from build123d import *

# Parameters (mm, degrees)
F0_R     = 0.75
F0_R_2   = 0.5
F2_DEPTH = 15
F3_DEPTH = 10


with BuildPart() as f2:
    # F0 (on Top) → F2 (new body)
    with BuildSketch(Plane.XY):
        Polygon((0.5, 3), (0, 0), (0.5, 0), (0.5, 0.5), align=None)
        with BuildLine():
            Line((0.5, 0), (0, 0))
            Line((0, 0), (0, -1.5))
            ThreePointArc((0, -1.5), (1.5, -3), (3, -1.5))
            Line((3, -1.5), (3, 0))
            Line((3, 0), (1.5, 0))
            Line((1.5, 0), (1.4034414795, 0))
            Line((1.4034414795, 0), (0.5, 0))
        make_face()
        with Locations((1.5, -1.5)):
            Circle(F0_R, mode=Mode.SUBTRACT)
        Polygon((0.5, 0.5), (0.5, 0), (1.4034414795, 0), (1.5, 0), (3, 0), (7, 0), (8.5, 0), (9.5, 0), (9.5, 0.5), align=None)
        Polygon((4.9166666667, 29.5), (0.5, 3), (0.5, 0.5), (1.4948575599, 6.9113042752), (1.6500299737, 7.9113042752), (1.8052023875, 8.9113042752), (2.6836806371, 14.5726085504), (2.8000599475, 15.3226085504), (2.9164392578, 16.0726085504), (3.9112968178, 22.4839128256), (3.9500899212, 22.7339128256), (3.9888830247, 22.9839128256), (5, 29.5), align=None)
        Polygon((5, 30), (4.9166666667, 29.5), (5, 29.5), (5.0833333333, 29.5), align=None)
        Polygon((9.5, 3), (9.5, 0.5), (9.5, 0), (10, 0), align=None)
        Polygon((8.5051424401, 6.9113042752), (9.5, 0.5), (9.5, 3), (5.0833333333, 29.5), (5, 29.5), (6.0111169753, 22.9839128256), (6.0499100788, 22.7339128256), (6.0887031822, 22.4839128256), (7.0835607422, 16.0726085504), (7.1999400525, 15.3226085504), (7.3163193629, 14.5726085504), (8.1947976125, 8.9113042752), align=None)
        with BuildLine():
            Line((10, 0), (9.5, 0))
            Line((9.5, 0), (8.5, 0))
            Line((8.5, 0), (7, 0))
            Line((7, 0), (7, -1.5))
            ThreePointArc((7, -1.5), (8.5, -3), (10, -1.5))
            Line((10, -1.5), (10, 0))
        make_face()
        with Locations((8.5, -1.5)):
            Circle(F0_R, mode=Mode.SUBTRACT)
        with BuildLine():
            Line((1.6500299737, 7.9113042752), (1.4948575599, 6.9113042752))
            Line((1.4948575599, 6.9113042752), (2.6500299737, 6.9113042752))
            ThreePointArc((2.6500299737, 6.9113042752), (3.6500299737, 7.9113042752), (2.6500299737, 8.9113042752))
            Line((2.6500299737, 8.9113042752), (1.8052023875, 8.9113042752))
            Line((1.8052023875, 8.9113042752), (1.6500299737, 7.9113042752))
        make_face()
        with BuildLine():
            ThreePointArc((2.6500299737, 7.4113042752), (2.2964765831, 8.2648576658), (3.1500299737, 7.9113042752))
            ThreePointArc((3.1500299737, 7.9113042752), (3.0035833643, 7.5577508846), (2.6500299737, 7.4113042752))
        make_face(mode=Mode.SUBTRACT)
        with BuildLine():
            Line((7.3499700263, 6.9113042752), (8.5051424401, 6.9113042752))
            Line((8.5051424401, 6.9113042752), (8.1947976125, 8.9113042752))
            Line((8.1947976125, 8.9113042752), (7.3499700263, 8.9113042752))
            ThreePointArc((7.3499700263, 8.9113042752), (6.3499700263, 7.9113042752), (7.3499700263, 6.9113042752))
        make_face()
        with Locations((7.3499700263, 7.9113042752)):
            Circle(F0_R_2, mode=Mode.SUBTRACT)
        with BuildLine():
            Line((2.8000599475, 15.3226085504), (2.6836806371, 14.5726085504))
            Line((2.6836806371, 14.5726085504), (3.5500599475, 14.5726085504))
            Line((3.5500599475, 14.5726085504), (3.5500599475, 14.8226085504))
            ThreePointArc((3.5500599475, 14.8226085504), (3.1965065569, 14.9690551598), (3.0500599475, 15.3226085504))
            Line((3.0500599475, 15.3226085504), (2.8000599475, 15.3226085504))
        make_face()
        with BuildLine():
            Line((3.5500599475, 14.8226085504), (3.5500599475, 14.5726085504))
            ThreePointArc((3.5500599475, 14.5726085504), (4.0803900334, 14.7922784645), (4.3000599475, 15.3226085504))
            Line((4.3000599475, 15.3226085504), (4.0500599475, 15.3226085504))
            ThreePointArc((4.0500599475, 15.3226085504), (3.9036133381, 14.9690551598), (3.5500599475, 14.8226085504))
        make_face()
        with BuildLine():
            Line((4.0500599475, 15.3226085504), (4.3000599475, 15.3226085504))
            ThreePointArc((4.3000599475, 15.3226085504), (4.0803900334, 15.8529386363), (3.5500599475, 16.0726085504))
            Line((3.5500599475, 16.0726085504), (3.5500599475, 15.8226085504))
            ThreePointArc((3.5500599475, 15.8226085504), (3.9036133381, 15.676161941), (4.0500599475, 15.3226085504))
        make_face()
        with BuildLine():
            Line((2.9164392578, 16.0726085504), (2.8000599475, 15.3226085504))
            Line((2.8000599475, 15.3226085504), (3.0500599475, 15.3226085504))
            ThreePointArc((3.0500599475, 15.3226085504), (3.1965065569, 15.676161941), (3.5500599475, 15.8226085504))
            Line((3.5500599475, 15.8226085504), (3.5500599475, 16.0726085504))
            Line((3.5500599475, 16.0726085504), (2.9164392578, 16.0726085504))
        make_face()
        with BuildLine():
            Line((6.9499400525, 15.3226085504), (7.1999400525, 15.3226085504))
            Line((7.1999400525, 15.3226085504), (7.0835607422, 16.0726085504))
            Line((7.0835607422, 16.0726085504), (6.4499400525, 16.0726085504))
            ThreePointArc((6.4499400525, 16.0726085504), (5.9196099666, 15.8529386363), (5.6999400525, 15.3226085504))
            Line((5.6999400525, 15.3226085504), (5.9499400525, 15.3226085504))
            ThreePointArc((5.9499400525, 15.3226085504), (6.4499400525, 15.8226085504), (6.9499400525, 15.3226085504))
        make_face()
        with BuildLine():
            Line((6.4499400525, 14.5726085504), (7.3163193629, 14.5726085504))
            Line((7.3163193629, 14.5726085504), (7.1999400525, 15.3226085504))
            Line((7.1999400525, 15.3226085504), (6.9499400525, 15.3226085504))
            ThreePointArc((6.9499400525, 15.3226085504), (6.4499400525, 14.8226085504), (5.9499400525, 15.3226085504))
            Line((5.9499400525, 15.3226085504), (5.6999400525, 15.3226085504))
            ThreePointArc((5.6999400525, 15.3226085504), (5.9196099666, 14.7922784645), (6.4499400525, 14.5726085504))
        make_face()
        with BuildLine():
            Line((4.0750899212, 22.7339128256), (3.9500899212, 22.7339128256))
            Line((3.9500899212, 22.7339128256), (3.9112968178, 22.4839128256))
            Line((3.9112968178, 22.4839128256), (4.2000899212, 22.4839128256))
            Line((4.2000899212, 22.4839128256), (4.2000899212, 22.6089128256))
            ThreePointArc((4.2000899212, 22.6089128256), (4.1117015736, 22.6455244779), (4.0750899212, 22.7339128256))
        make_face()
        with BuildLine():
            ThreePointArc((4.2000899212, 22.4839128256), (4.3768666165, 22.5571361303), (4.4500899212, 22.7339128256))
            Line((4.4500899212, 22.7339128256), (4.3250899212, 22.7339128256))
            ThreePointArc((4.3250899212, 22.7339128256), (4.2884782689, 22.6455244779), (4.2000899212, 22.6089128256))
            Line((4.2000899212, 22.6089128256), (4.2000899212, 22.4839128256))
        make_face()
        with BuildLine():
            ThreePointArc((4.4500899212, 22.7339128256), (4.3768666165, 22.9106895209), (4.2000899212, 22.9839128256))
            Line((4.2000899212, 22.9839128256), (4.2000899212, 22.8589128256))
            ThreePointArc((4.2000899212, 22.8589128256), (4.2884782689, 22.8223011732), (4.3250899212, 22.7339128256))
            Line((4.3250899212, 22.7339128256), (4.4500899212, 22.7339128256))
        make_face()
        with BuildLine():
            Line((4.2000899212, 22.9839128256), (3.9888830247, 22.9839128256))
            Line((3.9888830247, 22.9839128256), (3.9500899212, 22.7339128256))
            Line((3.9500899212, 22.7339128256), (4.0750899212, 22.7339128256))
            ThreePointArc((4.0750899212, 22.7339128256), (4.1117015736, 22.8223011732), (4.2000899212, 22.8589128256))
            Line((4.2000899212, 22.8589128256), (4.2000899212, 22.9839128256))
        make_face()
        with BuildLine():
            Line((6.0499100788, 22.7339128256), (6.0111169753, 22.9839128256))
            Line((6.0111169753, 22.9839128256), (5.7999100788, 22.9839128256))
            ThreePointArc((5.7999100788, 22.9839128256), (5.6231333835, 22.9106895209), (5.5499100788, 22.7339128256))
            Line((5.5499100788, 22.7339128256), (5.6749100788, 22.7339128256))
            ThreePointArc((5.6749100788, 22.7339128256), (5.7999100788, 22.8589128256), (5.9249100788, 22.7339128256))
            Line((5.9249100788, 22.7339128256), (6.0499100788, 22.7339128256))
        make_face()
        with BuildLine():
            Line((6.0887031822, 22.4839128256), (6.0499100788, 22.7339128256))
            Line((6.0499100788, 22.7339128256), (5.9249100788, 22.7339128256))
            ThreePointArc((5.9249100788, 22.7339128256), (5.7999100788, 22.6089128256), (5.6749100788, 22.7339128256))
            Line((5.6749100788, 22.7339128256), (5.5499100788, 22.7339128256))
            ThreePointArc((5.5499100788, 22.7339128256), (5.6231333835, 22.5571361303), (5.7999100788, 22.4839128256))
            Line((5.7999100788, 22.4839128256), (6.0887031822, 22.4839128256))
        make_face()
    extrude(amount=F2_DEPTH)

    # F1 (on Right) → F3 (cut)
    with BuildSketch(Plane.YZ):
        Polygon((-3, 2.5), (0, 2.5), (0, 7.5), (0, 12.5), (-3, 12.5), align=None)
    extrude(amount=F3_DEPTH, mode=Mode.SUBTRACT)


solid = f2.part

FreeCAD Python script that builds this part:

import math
import FreeCAD as App
import Part
import Sketcher
from FreeCAD import Vector


def add_polygon(sketch, points):
    """Adds a closed chain of lines whose ends are joined by coincident constraints."""
    first, n = sketch.GeometryCount, len(points)
    for a, b in zip(points, points[1:] + points[:1]):
        sketch.addGeometry(Part.LineSegment(App.Vector(*a, 0), App.Vector(*b, 0)), False)
    for i in range(n):
        sketch.addConstraint(Sketcher.Constraint("Coincident", first + i, 2, first + (i + 1) % n, 1))

doc = App.newDocument("Part")
params = doc.addObject("Spreadsheet::Sheet", "Params")
for row, (alias, value) in enumerate([
    ("sketch1_diameter", "1 mm"),
    ("sketch1_radius", "1 mm"),
    ("sketch1_diameter2", "1.5 mm"),
    ("sketch1_radius2", "1.5 mm"),
    ("sketch1_diameter3", "0.25 mm"),
    ("pad1_length", "15 mm"),
    ("sketch2_width", "3 mm"),
    ("sketch2_height", "10 mm"),
    ("pocket1_length", "10 mm"),
], start=1):
    params.set(f"A{row}", alias)
    params.set(f"B{row}", "=" + value)
    params.setAlias(f"B{row}", alias)

body = doc.addObject("PartDesign::Body", "Body")

sketch1 = doc.addObject("Sketcher::SketchObject", "Sketch")
body.addObject(sketch1)
sketch1.AttachmentSupport = (doc.XY_Plane, [""])
sketch1.MapMode = "FlatFace"
sketch1.addGeometry([
    Part.LineSegment(Vector(0.5, 3, 0), Vector(0, 0, 0)),
    Part.LineSegment(Vector(0, 0, 0), Vector(0, -1.5, 0)),
    Part.ArcOfCircle(Part.Circle(Vector(1.5, -1.5, 0), Vector(0, 0, 1), 1.5), math.radians(180), math.radians(360)),
    Part.LineSegment(Vector(3, -1.5, 0), Vector(3, 0, 0)),
    Part.LineSegment(Vector(3, 0, 0), Vector(7, 0, 0)),
    Part.LineSegment(Vector(7, 0, 0), Vector(7, -1.5, 0)),
    Part.ArcOfCircle(Part.Circle(Vector(8.5, -1.5, 0), Vector(0, 0, 1), 1.5), math.radians(180), math.radians(360)),
    Part.LineSegment(Vector(10, -1.5, 0), Vector(10, 0, 0)),
    Part.LineSegment(Vector(10, 0, 0), Vector(9.5, 3, 0)),
    Part.LineSegment(Vector(9.5, 3, 0), Vector(5.08, 29.5, 0)),
    Part.LineSegment(Vector(5.08, 29.5, 0), Vector(5, 30, 0)),
    Part.LineSegment(Vector(5, 30, 0), Vector(4.92, 29.5, 0)),
    Part.LineSegment(Vector(4.92, 29.5, 0), Vector(0.5, 3, 0)),
    Part.Circle(Vector(1.5, -1.5, 0), Vector(0, 0, 1), 0.75),
    Part.ArcOfCircle(Part.Circle(Vector(2.65, 7.91, 0), Vector(0, 0, 1), 0.5), math.radians(-90), math.radians(0)),
    Part.ArcOfCircle(Part.Circle(Vector(2.65, 7.91, 0), Vector(0, 0, 1), 0.5), math.radians(0), math.radians(270)),
    Part.Circle(Vector(8.5, -1.5, 0), Vector(0, 0, 1), 0.75),
    Part.Circle(Vector(7.35, 7.91, 0), Vector(0, 0, 1), 0.5),
    Part.LineSegment(Vector(9.5, 0.5, 0), Vector(0.5, 0.5, 0)),
    Part.LineSegment(Vector(0.5, 0.5, 0), Vector(1.49, 6.91, 0)),
    Part.LineSegment(Vector(1.49, 6.91, 0), Vector(2.65, 6.91, 0)),
    Part.ArcOfCircle(Part.Circle(Vector(2.65, 7.91, 0), Vector(0, 0, 1), 1), math.radians(-90), math.radians(90)),
    Part.LineSegment(Vector(2.65, 8.91, 0), Vector(1.81, 8.91, 0)),
    Part.LineSegment(Vector(1.81, 8.91, 0), Vector(2.68, 14.57, 0)),
    Part.LineSegment(Vector(2.68, 14.57, 0), Vector(3.55, 14.57, 0)),
    Part.ArcOfCircle(Part.Circle(Vector(3.55, 15.32, 0), Vector(0, 0, 1), 0.75), math.radians(-90), math.radians(0)),
    Part.ArcOfCircle(Part.Circle(Vector(3.55, 15.32, 0), Vector(0, 0, 1), 0.75), math.radians(0), math.radians(90)),
    Part.LineSegment(Vector(3.55, 16.07, 0), Vector(2.92, 16.07, 0)),
    Part.LineSegment(Vector(2.92, 16.07, 0), Vector(3.91, 22.48, 0)),
    Part.LineSegment(Vector(3.91, 22.48, 0), Vector(4.2, 22.48, 0)),
    Part.ArcOfCircle(Part.Circle(Vector(4.2, 22.73, 0), Vector(0, 0, 1), 0.25), math.radians(-90), math.radians(0)),
    Part.ArcOfCircle(Part.Circle(Vector(4.2, 22.73, 0), Vector(0, 0, 1), 0.25), math.radians(0), math.radians(90)),
    Part.LineSegment(Vector(4.2, 22.98, 0), Vector(3.99, 22.98, 0)),
    Part.LineSegment(Vector(3.99, 22.98, 0), Vector(5, 29.5, 0)),
    Part.LineSegment(Vector(5, 29.5, 0), Vector(6.01, 22.98, 0)),
    Part.LineSegment(Vector(6.01, 22.98, 0), Vector(5.8, 22.98, 0)),
    Part.ArcOfCircle(Part.Circle(Vector(5.8, 22.73, 0), Vector(0, 0, 1), 0.25), math.radians(90), math.radians(180)),
    Part.ArcOfCircle(Part.Circle(Vector(5.8, 22.73, 0), Vector(0, 0, 1), 0.25), math.radians(180), math.radians(270)),
    Part.LineSegment(Vector(5.8, 22.48, 0), Vector(6.09, 22.48, 0)),
    Part.LineSegment(Vector(6.09, 22.48, 0), Vector(7.08, 16.07, 0)),
    Part.LineSegment(Vector(7.08, 16.07, 0), Vector(6.45, 16.07, 0)),
    Part.ArcOfCircle(Part.Circle(Vector(6.45, 15.32, 0), Vector(0, 0, 1), 0.75), math.radians(90), math.radians(180)),
    Part.ArcOfCircle(Part.Circle(Vector(6.45, 15.32, 0), Vector(0, 0, 1), 0.75), math.radians(180), math.radians(270)),
    Part.LineSegment(Vector(6.45, 14.57, 0), Vector(7.32, 14.57, 0)),
    Part.LineSegment(Vector(7.32, 14.57, 0), Vector(8.19, 8.91, 0)),
    Part.LineSegment(Vector(8.19, 8.91, 0), Vector(7.35, 8.91, 0)),
    Part.ArcOfCircle(Part.Circle(Vector(7.35, 7.91, 0), Vector(0, 0, 1), 1), math.radians(90), math.radians(270)),
    Part.LineSegment(Vector(7.35, 6.91, 0), Vector(8.51, 6.91, 0)),
    Part.LineSegment(Vector(8.51, 6.91, 0), Vector(9.5, 0.5, 0)),
    Part.Circle(Vector(5.8, 22.73, 0), Vector(0, 0, 1), 0.12),
    Part.ArcOfCircle(Part.Circle(Vector(4.2, 22.73, 0), Vector(0, 0, 1), 0.12), math.radians(0), math.radians(90)),
    Part.ArcOfCircle(Part.Circle(Vector(4.2, 22.73, 0), Vector(0, 0, 1), 0.12), math.radians(-90), math.radians(0)),
    Part.ArcOfCircle(Part.Circle(Vector(4.2, 22.73, 0), Vector(0, 0, 1), 0.12), math.radians(180), math.radians(270)),
    Part.ArcOfCircle(Part.Circle(Vector(4.2, 22.73, 0), Vector(0, 0, 1), 0.12), math.radians(90), math.radians(180)),
    Part.Circle(Vector(6.45, 15.32, 0), Vector(0, 0, 1), 0.5),
    Part.ArcOfCircle(Part.Circle(Vector(3.55, 15.32, 0), Vector(0, 0, 1), 0.5), math.radians(0), math.radians(90)),
    Part.ArcOfCircle(Part.Circle(Vector(3.55, 15.32, 0), Vector(0, 0, 1), 0.5), math.radians(-90), math.radians(0)),
    Part.ArcOfCircle(Part.Circle(Vector(3.55, 15.32, 0), Vector(0, 0, 1), 0.5), math.radians(180), math.radians(270)),
    Part.ArcOfCircle(Part.Circle(Vector(3.55, 15.32, 0), Vector(0, 0, 1), 0.5), math.radians(90), math.radians(180)),
], False)
sketch1.addConstraint([
    Sketcher.Constraint("Coincident", 0, 2, 1, 1),
    Sketcher.Constraint("Tangent", 1, 2, 2, 1),
    Sketcher.Constraint("Tangent", 2, 2, 3, 1),
    Sketcher.Constraint("Coincident", 3, 2, 4, 1),
    Sketcher.Constraint("Coincident", 4, 2, 5, 1),
    Sketcher.Constraint("Tangent", 5, 2, 6, 1),
    Sketcher.Constraint("Tangent", 6, 2, 7, 1),
    Sketcher.Constraint("Coincident", 7, 2, 8, 1),
    Sketcher.Constraint("Coincident", 8, 2, 9, 1),
    Sketcher.Constraint("Coincident", 9, 2, 10, 1),
    Sketcher.Constraint("Coincident", 10, 2, 11, 1),
    Sketcher.Constraint("Coincident", 11, 2, 12, 1),
    Sketcher.Constraint("Coincident", 12, 2, 0, 1),
    Sketcher.Constraint("Tangent", 14, 1, 15, 2),
    Sketcher.Constraint("Coincident", 15, 1, 14, 2),
    Sketcher.Constraint("Coincident", 18, 2, 19, 1),
    Sketcher.Constraint("Coincident", 19, 2, 20, 1),
    Sketcher.Constraint("Tangent", 20, 2, 21, 1),
    Sketcher.Constraint("Tangent", 21, 2, 22, 1),
    Sketcher.Constraint("Coincident", 22, 2, 23, 1),
    Sketcher.Constraint("Coincident", 23, 2, 24, 1),
    Sketcher.Constraint("Tangent", 24, 2, 25, 1),
    Sketcher.Constraint("Tangent", 25, 2, 26, 1),
    Sketcher.Constraint("Tangent", 26, 2, 27, 1),
    Sketcher.Constraint("Coincident", 27, 2, 28, 1),
    Sketcher.Constraint("Coincident", 28, 2, 29, 1),
    Sketcher.Constraint("Tangent", 29, 2, 30, 1),
    Sketcher.Constraint("Tangent", 30, 2, 31, 1),
    Sketcher.Constraint("Tangent", 31, 2, 32, 1),
    Sketcher.Constraint("Coincident", 32, 2, 33, 1),
    Sketcher.Constraint("Coincident", 33, 2, 34, 1),
    Sketcher.Constraint("Coincident", 34, 2, 35, 1),
    Sketcher.Constraint("Tangent", 35, 2, 36, 1),
    Sketcher.Constraint("Tangent", 36, 2, 37, 1),
    Sketcher.Constraint("Tangent", 37, 2, 38, 1),
    Sketcher.Constraint("Coincident", 38, 2, 39, 1),
    Sketcher.Constraint("Coincident", 39, 2, 40, 1),
    Sketcher.Constraint("Tangent", 40, 2, 41, 1),
    Sketcher.Constraint("Tangent", 41, 2, 42, 1),
    Sketcher.Constraint("Tangent", 42, 2, 43, 1),
    Sketcher.Constraint("Coincident", 43, 2, 44, 1),
    Sketcher.Constraint("Coincident", 44, 2, 45, 1),
    Sketcher.Constraint("Tangent", 45, 2, 46, 1),
    Sketcher.Constraint("Tangent", 46, 2, 47, 1),
    Sketcher.Constraint("Coincident", 47, 2, 48, 1),
    Sketcher.Constraint("Coincident", 48, 2, 18, 1),
    Sketcher.Constraint("Tangent", 50, 1, 51, 2),
    Sketcher.Constraint("Tangent", 51, 1, 52, 2),
    Sketcher.Constraint("Tangent", 52, 1, 53, 2),
    Sketcher.Constraint("Tangent", 53, 1, 50, 2),
    Sketcher.Constraint("Tangent", 55, 1, 56, 2),
    Sketcher.Constraint("Tangent", 56, 1, 57, 2),
    Sketcher.Constraint("Tangent", 57, 1, 58, 2),
    Sketcher.Constraint("Tangent", 58, 1, 55, 2),
    Sketcher.Constraint("Vertical", 1),
    Sketcher.Constraint("Vertical", 3),
    Sketcher.Constraint("Horizontal", 4),
    Sketcher.Constraint("Vertical", 5),
    Sketcher.Constraint("Vertical", 7),
    Sketcher.Constraint("Horizontal", 18),
    Sketcher.Constraint("Horizontal", 20),
    Sketcher.Constraint("Horizontal", 22),
    Sketcher.Constraint("Horizontal", 24),
    Sketcher.Constraint("Horizontal", 27),
    Sketcher.Constraint("Horizontal", 29),
    Sketcher.Constraint("Horizontal", 32),
    Sketcher.Constraint("Horizontal", 35),
    Sketcher.Constraint("Horizontal", 38),
    Sketcher.Constraint("Horizontal", 40),
    Sketcher.Constraint("Horizontal", 43),
    Sketcher.Constraint("Horizontal", 45),
    Sketcher.Constraint("Horizontal", 47),
    Sketcher.Constraint("Coincident", 0, 2, -1, 1),
    Sketcher.Constraint("Coincident", 13, 3, 2, 3),
    Sketcher.Constraint("Coincident", 16, 3, 6, 3),
    Sketcher.Constraint("Coincident", 21, 3, 14, 3),
    Sketcher.Constraint("Coincident", 46, 3, 17, 3),
    Sketcher.Constraint("Coincident", 49, 3, 36, 3),
    Sketcher.Constraint("Coincident", 50, 3, 30, 3),
    Sketcher.Constraint("Coincident", 54, 3, 41, 3),
    Sketcher.Constraint("Coincident", 55, 3, 25, 3),
    Sketcher.Constraint("Equal", 2, 6),
    Sketcher.Constraint("Equal", 13, 16),
    Sketcher.Constraint("Equal", 15, 17),
    Sketcher.Constraint("Equal", 16, 25),
    Sketcher.Constraint("Equal", 25, 26),
    Sketcher.Constraint("Equal", 30, 31),
    Sketcher.Constraint("Equal", 31, 36),
    Sketcher.Constraint("Equal", 36, 37),
    Sketcher.Constraint("Equal", 26, 41),
    Sketcher.Constraint("Equal", 41, 42),
    Sketcher.Constraint("Equal", 21, 46),
    Sketcher.Constraint("Equal", 49, 50),
    Sketcher.Constraint("Equal", 50, 51),
    Sketcher.Constraint("Equal", 17, 54),
    Sketcher.Constraint("Equal", 54, 55),
    Sketcher.Constraint("Equal", 55, 56),
    Sketcher.Constraint("PointOnObject", 3, 2, -1),
    Sketcher.Constraint("PointOnObject", 7, 2, -1),
    Sketcher.Constraint("Parallel", 8, 9),
    Sketcher.Constraint("Parallel", 9, 10),
    Sketcher.Constraint("Parallel", 0, 11),
    Sketcher.Constraint("Parallel", 11, 12),
    Sketcher.Constraint("Parallel", 19, 23),
    Sketcher.Constraint("Parallel", 23, 28),
    Sketcher.Constraint("Parallel", 28, 33),
    Sketcher.Constraint("Parallel", 34, 39),
    Sketcher.Constraint("Parallel", 39, 44),
    Sketcher.Constraint("Parallel", 44, 48),
    Sketcher.Constraint("Horizontal", 2, 3, 6, 3),
    Sketcher.Constraint("Horizontal", 15, 3, 17, 3),
    Sketcher.Constraint("Horizontal", 31, 3, 36, 3),
    Sketcher.Constraint("Horizontal", 26, 3, 41, 3),
    Sketcher.Constraint("Horizontal", 9, 2, 11, 2),
    Sketcher.Constraint("Horizontal", 8, 2, 12, 2),
    Sketcher.Constraint("Horizontal", 46, 3, 15, 1),
    Sketcher.Constraint("Horizontal", 58, 3, 25, 2),
    Sketcher.Constraint("Horizontal", 53, 3, 30, 2),
    Sketcher.Constraint("Horizontal", 11, 2, 33, 2),
    Sketcher.Constraint("Horizontal", 30, 2, 36, 2),
    Sketcher.Constraint("Horizontal", 25, 2, 41, 2),
    Sketcher.Constraint("Horizontal", 36, 2, 50, 1),
    Sketcher.Constraint("Horizontal", 50, 1, 52, 1),
    Sketcher.Constraint("Horizontal", 41, 2, 55, 1),
    Sketcher.Constraint("Horizontal", 55, 1, 57, 1),
    Sketcher.Constraint("Vertical", 21, 3, 14, 1),
    Sketcher.Constraint("Vertical", 12, 2, 18, 2),
    Sketcher.Constraint("Vertical", 10, 2, 33, 2),
    Sketcher.Constraint("Vertical", 8, 2, 48, 2),
    Sketcher.Constraint("Vertical", 31, 2, 51, 1),
    Sketcher.Constraint("Vertical", 51, 1, 53, 1),
    Sketcher.Constraint("Vertical", 26, 2, 56, 1),
    Sketcher.Constraint("Vertical", 56, 1, 58, 1),
    Sketcher.Constraint("Equal", 32, 35),
    Sketcher.Constraint("Equal", 29, 38),
    Sketcher.Constraint("Equal", 27, 40),
    Sketcher.Constraint("Equal", 24, 43),
    Sketcher.Constraint("Equal", 22, 45),
    Sketcher.Constraint("Equal", 20, 47),
    Sketcher.Constraint("Equal", 0, 8),
    Sketcher.Constraint("Equal", 19, 28),
    Sketcher.Constraint("Diameter", 17, 1.0),
    Sketcher.Constraint("Radius", 21, 1.0),
    Sketcher.Constraint("Diameter", 13, 1.5),
    Sketcher.Constraint("Radius", 2, 1.5),
    Sketcher.Constraint("Diameter", 49, 0.25),
    Sketcher.Constraint("DistanceX", 4, 1, 4, 2, 4.0),
    Sketcher.Constraint("DistanceX", 18, 2, 18, 1, 9.0),
    Sketcher.Constraint("Radius", 30, 0.25),
    Sketcher.Constraint("DistanceY", 1, 2, 1, 1, 1.5),
    Sketcher.Constraint("DistanceY", -1, 1, 8, 2, 3.0),
    Sketcher.Constraint("DistanceY", -1, 1, 9, 2, 29.5),
    Sketcher.Constraint("DistanceY", -1, 1, 18, 2, 0.5),
    Sketcher.Constraint("DistanceX", 24, 1, 24, 2, 0.866379),
    Sketcher.Constraint("DistanceX", 27, 2, 27, 1, 0.633621),
    Sketcher.Constraint("Distance", 33, 6.594069),
    Sketcher.Constraint("DistanceX", 20, 1, 20, 2, 1.155172),
    Sketcher.Constraint("DistanceX", 22, 2, 22, 1, 0.844828),
    Sketcher.Constraint("DistanceX", 29, 1, 29, 2, 0.288793),
    Sketcher.Constraint("DistanceX", 32, 2, 32, 1, 0.211207),
    Sketcher.Constraint("DistanceX", -1, 1, 14, 3, 2.65003),
])
sketch1.setExpression("Constraints[141]", "Params.sketch1_diameter")
sketch1.setExpression("Constraints[142]", "Params.sketch1_radius")
sketch1.setExpression("Constraints[143]", "Params.sketch1_diameter2")
sketch1.setExpression("Constraints[144]", "Params.sketch1_radius2")
sketch1.setExpression("Constraints[145]", "Params.sketch1_diameter3")
pad1 = doc.addObject("PartDesign::Pad", "Pad")
body.addObject(pad1)
pad1.Profile = sketch1
pad1.setExpression("Length", "Params.pad1_length")

sketch2 = doc.addObject("Sketcher::SketchObject", "Sketch001")
body.addObject(sketch2)
sketch2.AttachmentSupport = (doc.YZ_Plane, [""])
sketch2.MapMode = "FlatFace"
add_polygon(sketch2, [(-3, 2.5), (0, 2.5), (0, 12.5), (-3, 12.5)])
sketch2.addConstraint([
    Sketcher.Constraint("Horizontal", 0),
    Sketcher.Constraint("Vertical", 1),
    Sketcher.Constraint("Horizontal", 2),
    Sketcher.Constraint("Vertical", 3),
    Sketcher.Constraint("PointOnObject", 0, 2, -2),
    Sketcher.Constraint("DistanceX", 0, 1, 0, 2, 3.0),
    Sketcher.Constraint("DistanceY", 1, 1, 1, 2, 10.0),
    Sketcher.Constraint("DistanceY", -1, 1, 0, 2, 2.5),
])
sketch2.setExpression("Constraints[9]", "Params.sketch2_width")
sketch2.setExpression("Constraints[10]", "Params.sketch2_height")
pocket1 = doc.addObject("PartDesign::Pocket", "Pocket")
body.addObject(pocket1)
pocket1.Profile = sketch2
pocket1.setExpression("Length", "Params.pocket1_length")
pocket1.Reversed = True

doc.recompute()
